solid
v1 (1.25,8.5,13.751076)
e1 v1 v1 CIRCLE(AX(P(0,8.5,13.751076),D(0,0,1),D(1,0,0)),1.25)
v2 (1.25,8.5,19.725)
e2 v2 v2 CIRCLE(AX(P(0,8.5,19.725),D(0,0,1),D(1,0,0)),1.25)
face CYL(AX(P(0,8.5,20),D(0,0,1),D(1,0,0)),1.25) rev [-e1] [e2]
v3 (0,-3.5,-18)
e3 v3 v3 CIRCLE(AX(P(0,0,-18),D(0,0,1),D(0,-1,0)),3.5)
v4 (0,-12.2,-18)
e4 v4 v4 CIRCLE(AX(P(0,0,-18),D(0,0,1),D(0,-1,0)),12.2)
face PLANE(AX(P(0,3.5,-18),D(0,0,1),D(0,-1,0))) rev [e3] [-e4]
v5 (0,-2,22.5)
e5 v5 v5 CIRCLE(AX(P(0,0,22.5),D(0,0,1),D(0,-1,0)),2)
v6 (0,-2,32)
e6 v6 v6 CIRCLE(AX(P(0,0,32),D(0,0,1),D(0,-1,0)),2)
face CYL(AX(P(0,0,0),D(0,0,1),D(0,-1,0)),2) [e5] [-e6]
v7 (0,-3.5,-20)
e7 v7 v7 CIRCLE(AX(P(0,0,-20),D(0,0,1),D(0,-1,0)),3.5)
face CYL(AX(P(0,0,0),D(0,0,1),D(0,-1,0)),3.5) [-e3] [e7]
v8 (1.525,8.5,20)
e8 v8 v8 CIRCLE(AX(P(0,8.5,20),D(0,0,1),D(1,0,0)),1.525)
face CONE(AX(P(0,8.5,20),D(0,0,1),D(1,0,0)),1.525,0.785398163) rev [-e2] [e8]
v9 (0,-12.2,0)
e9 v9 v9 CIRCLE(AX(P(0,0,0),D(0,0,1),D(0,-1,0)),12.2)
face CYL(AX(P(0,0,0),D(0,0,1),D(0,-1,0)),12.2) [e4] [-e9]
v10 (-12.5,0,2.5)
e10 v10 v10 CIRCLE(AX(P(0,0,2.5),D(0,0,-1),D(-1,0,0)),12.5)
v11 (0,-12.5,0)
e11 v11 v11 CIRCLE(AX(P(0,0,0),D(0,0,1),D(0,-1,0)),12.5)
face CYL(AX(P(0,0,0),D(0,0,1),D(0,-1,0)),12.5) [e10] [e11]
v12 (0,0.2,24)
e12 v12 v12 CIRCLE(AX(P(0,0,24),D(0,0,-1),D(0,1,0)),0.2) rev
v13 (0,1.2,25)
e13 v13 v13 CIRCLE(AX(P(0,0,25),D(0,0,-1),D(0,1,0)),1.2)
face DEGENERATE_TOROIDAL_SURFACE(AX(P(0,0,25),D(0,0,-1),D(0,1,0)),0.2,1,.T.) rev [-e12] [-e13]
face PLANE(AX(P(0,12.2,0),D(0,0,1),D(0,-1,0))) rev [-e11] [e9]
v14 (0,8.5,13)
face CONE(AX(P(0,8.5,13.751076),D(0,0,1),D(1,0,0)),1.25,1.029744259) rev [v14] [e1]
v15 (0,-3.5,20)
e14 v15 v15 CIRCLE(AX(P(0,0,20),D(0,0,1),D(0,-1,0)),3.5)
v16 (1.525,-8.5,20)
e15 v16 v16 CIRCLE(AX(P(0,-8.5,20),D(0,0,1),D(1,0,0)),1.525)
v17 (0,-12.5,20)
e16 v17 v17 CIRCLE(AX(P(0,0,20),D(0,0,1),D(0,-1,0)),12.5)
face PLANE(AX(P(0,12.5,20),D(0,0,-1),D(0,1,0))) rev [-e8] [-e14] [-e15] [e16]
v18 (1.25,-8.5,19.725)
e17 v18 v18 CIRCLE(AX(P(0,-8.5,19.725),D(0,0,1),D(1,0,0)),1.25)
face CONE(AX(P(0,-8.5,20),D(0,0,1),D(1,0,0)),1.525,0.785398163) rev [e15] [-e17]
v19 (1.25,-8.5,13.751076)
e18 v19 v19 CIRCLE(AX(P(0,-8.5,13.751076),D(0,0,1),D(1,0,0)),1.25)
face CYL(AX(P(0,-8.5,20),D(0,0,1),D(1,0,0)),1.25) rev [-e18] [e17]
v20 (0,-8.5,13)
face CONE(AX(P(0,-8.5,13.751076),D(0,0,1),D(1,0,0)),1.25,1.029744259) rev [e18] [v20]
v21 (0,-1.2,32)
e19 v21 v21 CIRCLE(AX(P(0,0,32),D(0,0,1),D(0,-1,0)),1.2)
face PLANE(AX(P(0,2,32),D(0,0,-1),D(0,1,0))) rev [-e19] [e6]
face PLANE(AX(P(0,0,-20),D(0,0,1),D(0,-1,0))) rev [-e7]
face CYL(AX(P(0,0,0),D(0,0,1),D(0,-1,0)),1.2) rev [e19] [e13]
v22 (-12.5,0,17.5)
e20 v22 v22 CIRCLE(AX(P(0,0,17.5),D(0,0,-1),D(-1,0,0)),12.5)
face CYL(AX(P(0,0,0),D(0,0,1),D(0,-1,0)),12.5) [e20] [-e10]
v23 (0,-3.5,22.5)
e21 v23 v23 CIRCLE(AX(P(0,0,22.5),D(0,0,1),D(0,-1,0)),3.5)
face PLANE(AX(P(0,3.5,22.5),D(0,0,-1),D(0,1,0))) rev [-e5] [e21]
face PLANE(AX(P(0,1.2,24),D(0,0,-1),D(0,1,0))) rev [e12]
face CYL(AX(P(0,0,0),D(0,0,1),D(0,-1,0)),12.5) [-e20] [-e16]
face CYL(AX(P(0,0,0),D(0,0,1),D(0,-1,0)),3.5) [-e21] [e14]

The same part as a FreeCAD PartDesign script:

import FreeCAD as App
import Part
import Sketcher


def edges_at(feature, points):
    """Names of the edges that pass closest to the given points."""
    edges = feature.Shape.Edges
    near = lambda p: min(range(len(edges)), key=lambda i: edges[i].distToShape(Part.Vertex(*p))[0])
    return sorted({f"Edge{near(p) + 1}" for p in points})

doc = App.newDocument("Part")
body = doc.addObject("PartDesign::Body", "Body")

# Sketch on YZ plane
sketch1 = body.newObject("Sketcher::SketchObject", "Sketch")
sketch1.AttachmentSupport = (doc.getObject("YZ_Plane"), [""])
sketch1.MapMode = "FlatFace"
sketch1.addGeometry([
    Part.LineSegment(App.Vector(0, -20, 0), App.Vector(3.5, -20, 0)),  # 0
    Part.LineSegment(App.Vector(3.5, -20, 0), App.Vector(3.5, -18, 0)),  # 1
    Part.LineSegment(App.Vector(3.5, -18, 0), App.Vector(12.2, -18, 0)),  # 2
    Part.LineSegment(App.Vector(12.2, -18, 0), App.Vector(12.2, 0, 0)),  # 3
    Part.LineSegment(App.Vector(12.2, 0, 0), App.Vector(12.5, 0, 0)),  # 4
    Part.LineSegment(App.Vector(12.5, 0, 0), App.Vector(12.5, 20, 0)),  # 5
    Part.LineSegment(App.Vector(12.5, 20, 0), App.Vector(3.5, 20, 0)),  # 6
    Part.LineSegment(App.Vector(3.5, 20, 0), App.Vector(3.5, 22.5, 0)),  # 7
    Part.LineSegment(App.Vector(3.5, 22.5, 0), App.Vector(2, 22.5, 0)),  # 8
    Part.LineSegment(App.Vector(2, 22.5, 0), App.Vector(2, 32, 0)),  # 9
    Part.LineSegment(App.Vector(2, 32, 0), App.Vector(1.2, 32, 0)),  # 10
    Part.LineSegment(App.Vector(1.2, 32, 0), App.Vector(1.2, 24, 0)),  # 11
    Part.LineSegment(App.Vector(1.2, 24, 0), App.Vector(0, 24, 0)),  # 12
    Part.LineSegment(App.Vector(0, 24, 0), App.Vector(0, -20, 0)),  # 13
], False)
sketch1.addConstraint([
    Sketcher.Constraint("Coincident", 0, 2, 1, 1),
    Sketcher.Constraint("Coincident", 1, 2, 2, 1),
    Sketcher.Constraint("Coincident", 2, 2, 3, 1),
    Sketcher.Constraint("Coincident", 3, 2, 4, 1),
    Sketcher.Constraint("Coincident", 4, 2, 5, 1),
    Sketcher.Constraint("Coincident", 5, 2, 6, 1),
    Sketcher.Constraint("Coincident", 6, 2, 7, 1),
    Sketcher.Constraint("Coincident", 7, 2, 8, 1),
    Sketcher.Constraint("Coincident", 8, 2, 9, 1),
    Sketcher.Constraint("Coincident", 9, 2, 10, 1),
    Sketcher.Constraint("Coincident", 10, 2, 11, 1),
    Sketcher.Constraint("Coincident", 11, 2, 12, 1),
    Sketcher.Constraint("Coincident", 12, 2, 13, 1),
    Sketcher.Constraint("Coincident", 13, 2, 0, 1),
    Sketcher.Constraint("Horizontal", 0),
    Sketcher.Constraint("Vertical", 1),
    Sketcher.Constraint("Horizontal", 2),
    Sketcher.Constraint("Vertical", 3),
    Sketcher.Constraint("Horizontal", 4),
    Sketcher.Constraint("Vertical", 5),
    Sketcher.Constraint("Horizontal", 6),
    Sketcher.Constraint("Vertical", 7),
    Sketcher.Constraint("Horizontal", 8),
    Sketcher.Constraint("Vertical", 9),
    Sketcher.Constraint("Horizontal", 10),
    Sketcher.Constraint("Vertical", 11),
    Sketcher.Constraint("Horizontal", 12),
    Sketcher.Constraint("Vertical", 13),
    Sketcher.Constraint("Symmetric", 0, 2, 6, 2, -1),
    Sketcher.Constraint("PointOnObject", 3, 2, -1),
    Sketcher.Constraint("PointOnObject", 12, 2, -2),
    Sketcher.Constraint("DistanceX", 6, 2, 6, 1, 9.0),
    Sketcher.Constraint("DistanceY", 1, 1, 1, 2, 2.0),
    Sketcher.Constraint("DistanceY", 3, 1, 3, 2, 18.0),
    Sketcher.Constraint("DistanceY", 11, 2, 11, 1, 8.0),
    Sketcher.Constraint("DistanceY", 13, 2, 13, 1, 44.0),
    Sketcher.Constraint("DistanceX", 0, 1, 0, 2, 3.5),
    Sketcher.Constraint("DistanceX", 2, 1, 2, 2, 8.7),
    Sketcher.Constraint("DistanceX", 8, 2, 8, 1, 1.5),
    Sketcher.Constraint("DistanceX", 10, 2, 10, 1, 0.8),
    Sketcher.Constraint("DistanceY", 7, 1, 7, 2, 2.5),
])
revolution = body.newObject("PartDesign::Revolution", "Revolution")
revolution.Profile = sketch1
revolution.ReferenceAxis = (sketch1, ["V_Axis"])
revolution.Angle = 360

# Sketch on XY plane
sketch2 = body.newObject("Sketcher::SketchObject", "Sketch001")
sketch2.AttachmentSupport = (doc.getObject("XY_Plane"), [""])
sketch2.MapMode = "FlatFace"
sketch2.AttachmentOffset = App.Placement(App.Vector(0, 0, 20), App.Rotation())
sketch2.addGeometry([
    Part.Circle(App.Vector(0, 8.5, 0), App.Vector(0, 0, 1), 1.2),
    Part.Circle(App.Vector(0, -8.5, 0), App.Vector(0, 0, 1), 1.2),
], False)
sketch2.addConstraint([
    Sketcher.Constraint("Equal", 0, 1),
    Sketcher.Constraint("Symmetric", 0, 3, 1, 3, -1, 1),
    Sketcher.Constraint("PointOnObject", 0, 3, -2),
    Sketcher.Constraint("Diameter", 0, 2.5),
    Sketcher.Constraint("DistanceY", 1, 3, 0, 3, 17.0),
])
doc.recompute()
hole = body.newObject("PartDesign::Hole", "Hole")
hole.Profile = sketch2
hole.ThreadType = "None"
hole.Diameter = 2.5
hole.DepthType = "Dimension"
hole.Depth = 6.248924
hole.DrillPoint = "Angled"
hole.DrillPointAngle = 118
hole.HoleCutType = "Countersink"
hole.HoleCutDiameter = 3.05
hole.HoleCutCountersinkAngle = 90
doc.recompute()

fillet = body.newObject("PartDesign::Fillet", "Fillet")
fillet.Base = (hole, edges_at(hole, [(0, 1.2, 24)]))
fillet.Radius = 1

doc.recompute()
